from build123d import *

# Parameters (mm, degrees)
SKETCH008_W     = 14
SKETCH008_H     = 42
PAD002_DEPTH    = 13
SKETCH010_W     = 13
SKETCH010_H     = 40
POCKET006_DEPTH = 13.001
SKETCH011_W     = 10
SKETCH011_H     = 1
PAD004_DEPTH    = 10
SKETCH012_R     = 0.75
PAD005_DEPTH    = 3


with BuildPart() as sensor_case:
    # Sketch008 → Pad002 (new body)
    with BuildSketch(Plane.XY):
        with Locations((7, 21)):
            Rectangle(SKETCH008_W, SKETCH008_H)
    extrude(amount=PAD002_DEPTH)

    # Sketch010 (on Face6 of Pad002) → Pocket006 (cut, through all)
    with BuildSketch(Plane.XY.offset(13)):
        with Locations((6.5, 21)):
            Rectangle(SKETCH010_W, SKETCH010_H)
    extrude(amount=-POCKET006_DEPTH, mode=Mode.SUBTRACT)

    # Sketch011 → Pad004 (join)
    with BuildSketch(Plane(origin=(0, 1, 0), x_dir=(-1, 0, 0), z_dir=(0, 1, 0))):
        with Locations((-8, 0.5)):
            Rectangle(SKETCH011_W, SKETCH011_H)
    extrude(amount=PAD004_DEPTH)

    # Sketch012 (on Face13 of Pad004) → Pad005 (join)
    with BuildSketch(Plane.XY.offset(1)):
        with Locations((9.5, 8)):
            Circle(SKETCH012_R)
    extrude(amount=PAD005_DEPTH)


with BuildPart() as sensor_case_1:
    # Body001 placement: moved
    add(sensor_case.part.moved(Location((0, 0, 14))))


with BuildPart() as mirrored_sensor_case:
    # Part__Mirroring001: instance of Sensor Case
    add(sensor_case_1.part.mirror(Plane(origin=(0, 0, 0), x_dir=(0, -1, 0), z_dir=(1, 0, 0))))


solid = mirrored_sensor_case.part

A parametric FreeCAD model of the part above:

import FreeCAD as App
import Part
import Sketcher
from FreeCAD import Vector

doc = App.newDocument("Part")
params = doc.addObject("Spreadsheet::Sheet", "Params")
for row, (alias, value) in enumerate([
    ("sketch1_width", "14 mm"),
    ("sketch1_height", "42 mm"),
    ("pad1_length", "13 mm"),
    ("sketch2_width", "13 mm"),
    ("sketch2_height", "40 mm"),
    ("sketch3_width", "10 mm"),
    ("sketch3_height", "1 mm"),
    ("pad2_length", "10 mm"),
    ("sketch4_diameter", "1.5 mm"),
    ("pad3_length", "3 mm"),
], start=1):
    params.set(f"A{row}", alias)
    params.set(f"B{row}", "=" + value)
    params.setAlias(f"B{row}", alias)

body = doc.addObject("PartDesign::Body", "Body")

sketch1 = body.newObject("Sketcher::SketchObject", "Sketch")
sketch1.AttachmentSupport = (doc.getObject("XY_Plane"), [""])
sketch1.MapMode = "FlatFace"
sketch1.addGeometry([
    Part.LineSegment(Vector(0, 42, 0), Vector(0, 0, 0)),
    Part.LineSegment(Vector(0, 0, 0), Vector(14, 0, 0)),
    Part.LineSegment(Vector(14, 0, 0), Vector(14, 42, 0)),
    Part.LineSegment(Vector(14, 42, 0), Vector(0, 42, 0)),
], False)
sketch1.addConstraint([
    Sketcher.Constraint("Coincident", 0, 2, 1, 1),
    Sketcher.Constraint("Coincident", 1, 2, 2, 1),
    Sketcher.Constraint("Coincident", 2, 2, 3, 1),
    Sketcher.Constraint("Coincident", 3, 2, 0, 1),
    Sketcher.Constraint("Vertical", 0),
    Sketcher.Constraint("Horizontal", 1),
    Sketcher.Constraint("Vertical", 2),
    Sketcher.Constraint("Horizontal", 3),
    Sketcher.Constraint("Coincident", 0, 2, -1, 1),
    Sketcher.Constraint("DistanceX", 1, 1, 1, 2, 14.0),
    Sketcher.Constraint("DistanceY", 0, 2, 0, 1, 42.0),
])
sketch1.setExpression("Constraints[9]", "Params.sketch1_width")
sketch1.setExpression("Constraints[10]", "Params.sketch1_height")
pad1 = body.newObject("PartDesign::Pad", "Pad")
pad1.Profile = sketch1
pad1.setExpression("Length", "Params.pad1_length")

sketch2 = body.newObject("Sketcher::SketchObject", "Sketch001")
sketch2.AttachmentSupport = (doc.getObject("XY_Plane"), [""])
sketch2.MapMode = "FlatFace"
sketch2.AttachmentOffset = App.Placement(Vector(0, 0, 13), App.Rotation())
sketch2.addGeometry([
    Part.LineSegment(Vector(0, 41, 0), Vector(0, 1, 0)),
    Part.LineSegment(Vector(0, 1, 0), Vector(13, 1, 0)),
    Part.LineSegment(Vector(13, 1, 0), Vector(13, 41, 0)),
    Part.LineSegment(Vector(13, 41, 0), Vector(0, 41, 0)),
], False)
sketch2.addConstraint([
    Sketcher.Constraint("Coincident", 0, 2, 1, 1),
    Sketcher.Constraint("Coincident", 1, 2, 2, 1),
    Sketcher.Constraint("Coincident", 2, 2, 3, 1),
    Sketcher.Constraint("Coincident", 3, 2, 0, 1),
    Sketcher.Constraint("Vertical", 0),
    Sketcher.Constraint("Horizontal", 1),
    Sketcher.Constraint("Vertical", 2),
    Sketcher.Constraint("Horizontal", 3),
    Sketcher.Constraint("PointOnObject", 0, 2, -2),
    Sketcher.Constraint("DistanceX", 1, 1, 1, 2, 13.0),
    Sketcher.Constraint("DistanceY", 0, 2, 0, 1, 40.0),
    Sketcher.Constraint("DistanceY", -1, 1, 0, 2, 1.0),
])
sketch2.setExpression("Constraints[9]", "Params.sketch2_width")
sketch2.setExpression("Constraints[10]", "Params.sketch2_height")
pocket1 = body.newObject("PartDesign::Pocket", "Pocket")
pocket1.Profile = sketch2
pocket1.Type = "ThroughAll"

sketch3 = body.newObject("Sketcher::SketchObject", "Sketch002")
sketch3.AttachmentSupport = (doc.getObject("XZ_Plane"), [""])
sketch3.MapMode = "FlatFace"
sketch3.AttachmentOffset = App.Placement(Vector(0, 0, -1), App.Rotation())
sketch3.addGeometry([
    Part.LineSegment(Vector(13, 1, 0), Vector(13, 0, 0)),
    Part.LineSegment(Vector(13, 0, 0), Vector(3, 0, 0)),
    Part.LineSegment(Vector(3, 0, 0), Vector(3, 1, 0)),
    Part.LineSegment(Vector(3, 1, 0), Vector(13, 1, 0)),
], False)
sketch3.addConstraint([
    Sketcher.Constraint("Coincident", 0, 2, 1, 1),
    Sketcher.Constraint("Coincident", 1, 2, 2, 1),
    Sketcher.Constraint("Coincident", 2, 2, 3, 1),
    Sketcher.Constraint("Coincident", 3, 2, 0, 1),
    Sketcher.Constraint("Vertical", 0),
    Sketcher.Constraint("Horizontal", 1),
    Sketcher.Constraint("Vertical", 2),
    Sketcher.Constraint("Horizontal", 3),
    Sketcher.Constraint("PointOnObject", 0, 2, -1),
    Sketcher.Constraint("DistanceX", 1, 2, 1, 1, 10.0),
    Sketcher.Constraint("DistanceY", 0, 2, 0, 1, 1.0),
    Sketcher.Constraint("DistanceX", -1, 1, 0, 2, 13.0),
])
sketch3.setExpression("Constraints[9]", "Params.sketch3_width")
sketch3.setExpression("Constraints[10]", "Params.sketch3_height")
pad2 = body.newObject("PartDesign::Pad", "Pad001")
pad2.Profile = sketch3
pad2.setExpression("Length", "Params.pad2_length")
pad2.Reversed = True

sketch4 = body.newObject("Sketcher::SketchObject", "Sketch003")
sketch4.AttachmentSupport = (doc.getObject("XY_Plane"), [""])
sketch4.MapMode = "FlatFace"
sketch4.AttachmentOffset = App.Placement(Vector(0, 0, 1), App.Rotation())
sketch4.addGeometry(Part.Circle(Vector(9.5, 8, 0), Vector(0, 0, 1), 0.75), False)
sketch4.addConstraint([
    Sketcher.Constraint("Diameter", 0, 1.5),
    Sketcher.Constraint("DistanceY", -1, 1, 0, 3, 8.0),
    Sketcher.Constraint("DistanceX", -1, 1, 0, 3, 9.5),
])
sketch4.setExpression("Constraints[0]", "Params.sketch4_diameter")
pad3 = body.newObject("PartDesign::Pad", "Pad002")
pad3.Profile = sketch4
pad3.setExpression("Length", "Params.pad3_length")
body2 = doc.addObject("PartDesign::Body", "Body001")
doc.recompute()

body.Placement = App.Placement(Vector(0, 0, 14), App.Rotation(Vector(0, 0, 1), 0))
boolean = body2.newObject("PartDesign::Boolean", "Boolean")
boolean.Type = "Fuse"
boolean.addObjects([body])
body3 = doc.addObject("PartDesign::Body", "Body002")
doc.recompute()

mirroring = doc.addObject("Part::Mirroring", "Mirroring")
mirroring.Source = body2
mirroring.Base = Vector(0, 0, 0)
mirroring.Normal = Vector(1, 0, 0)
body3.BaseFeature = mirroring
doc.recompute()
body2.Visibility = False
mirroring.Visibility = False

doc.recompute()
